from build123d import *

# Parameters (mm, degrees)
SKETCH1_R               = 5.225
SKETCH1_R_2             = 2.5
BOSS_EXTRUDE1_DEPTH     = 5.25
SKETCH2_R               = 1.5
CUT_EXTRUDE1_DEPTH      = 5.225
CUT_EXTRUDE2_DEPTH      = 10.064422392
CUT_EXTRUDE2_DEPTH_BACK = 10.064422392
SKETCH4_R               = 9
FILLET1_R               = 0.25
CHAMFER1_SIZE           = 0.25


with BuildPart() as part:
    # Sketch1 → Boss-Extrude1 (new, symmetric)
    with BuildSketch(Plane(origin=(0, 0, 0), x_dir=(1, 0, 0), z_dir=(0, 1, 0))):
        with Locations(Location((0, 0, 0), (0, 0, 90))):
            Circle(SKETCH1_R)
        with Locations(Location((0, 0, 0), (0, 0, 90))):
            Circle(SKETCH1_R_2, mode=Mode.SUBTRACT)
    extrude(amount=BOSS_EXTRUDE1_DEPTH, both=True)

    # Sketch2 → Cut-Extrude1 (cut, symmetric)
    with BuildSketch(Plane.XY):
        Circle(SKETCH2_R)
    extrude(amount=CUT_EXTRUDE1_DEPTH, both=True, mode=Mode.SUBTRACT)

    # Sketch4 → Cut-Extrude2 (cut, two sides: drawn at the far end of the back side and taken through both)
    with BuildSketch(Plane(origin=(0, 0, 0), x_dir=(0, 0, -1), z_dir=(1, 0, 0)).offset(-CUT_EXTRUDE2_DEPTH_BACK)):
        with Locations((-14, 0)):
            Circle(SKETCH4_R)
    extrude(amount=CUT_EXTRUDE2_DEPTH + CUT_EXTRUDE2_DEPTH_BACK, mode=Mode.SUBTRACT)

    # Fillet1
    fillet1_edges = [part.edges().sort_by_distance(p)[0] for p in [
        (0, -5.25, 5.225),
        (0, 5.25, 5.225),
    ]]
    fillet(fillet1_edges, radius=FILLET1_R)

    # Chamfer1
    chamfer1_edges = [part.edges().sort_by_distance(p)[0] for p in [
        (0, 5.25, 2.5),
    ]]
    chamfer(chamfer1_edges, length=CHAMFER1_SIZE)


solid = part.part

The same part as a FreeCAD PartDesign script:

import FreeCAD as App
import Part
import Sketcher
Q = App.Units.Quantity


def edges_at(feature, points):
    """Names of the edges that pass closest to the given points."""
    edges = feature.Shape.Edges
    near = lambda p: min(range(len(edges)), key=lambda i: edges[i].distToShape(Part.Vertex(*p))[0])
    return sorted({f"Edge{near(p) + 1}" for p in points})

doc = App.newDocument("Part")
params = doc.addObject("Spreadsheet::Sheet", "Params")
for row, (alias, value) in enumerate([
    ("sketch1_diameter", "5 mm"),
    ("sketch1_diameter2", "10.45 mm"),
    ("pad1_length", "10.5 mm"),
    ("sketch2_diameter", "3 mm"),
    ("pocket1_length", "10.45 mm"),
    ("sketch3_diameter", "18 mm"),
    ("fillet_radius", "0.25 mm"),
    ("chamfer_size", "0.25 mm"),
], start=1):
    params.set(f"A{row}", alias)
    params.set(f"B{row}", "=" + value)
    params.setAlias(f"B{row}", alias)

body = doc.addObject("PartDesign::Body", "Body")

sketch1 = doc.addObject("Sketcher::SketchObject", "Sketch")
body.addObject(sketch1)
sketch1.AttachmentSupport = (doc.XZ_Plane, [""])
sketch1.MapMode = "FlatFace"
sketch1.addGeometry([
    Part.Circle(App.Vector(0, 0, 0), App.Vector(0, 0, 1), 5.225),
    Part.Circle(App.Vector(0, 0, 0), App.Vector(0, 0, 1), 2.5),
], False)
sketch1.addConstraint([
    Sketcher.Constraint("Coincident", 0, 3, -1, 1),
    Sketcher.Constraint("Coincident", 1, 3, -1, 1),
    Sketcher.Constraint("Diameter", 1, Q("5 mm")),
    Sketcher.Constraint("Diameter", 0, Q("10.45 mm")),
])
sketch1.setExpression("Constraints[2]", "Params.sketch1_diameter")
sketch1.setExpression("Constraints[3]", "Params.sketch1_diameter2")
pad1 = doc.addObject("PartDesign::Pad", "Pad")
body.addObject(pad1)
pad1.Profile = sketch1
pad1.setExpression("Length", "Params.pad1_length")
pad1.Midplane = True

sketch2 = doc.addObject("Sketcher::SketchObject", "Sketch001")
body.addObject(sketch2)
sketch2.AttachmentSupport = (doc.XY_Plane, [""])
sketch2.MapMode = "FlatFace"
sketch2.addGeometry(Part.Circle(App.Vector(0, 0, 0), App.Vector(0, 0, 1), 1.5), False)
sketch2.addConstraint([
    Sketcher.Constraint("Coincident", 0, 3, -1, 1),
    Sketcher.Constraint("Diameter", 0, Q("3 mm")),
])
sketch2.setExpression("Constraints[1]", "Params.sketch2_diameter")
pocket1 = doc.addObject("PartDesign::Pocket", "Pocket")
body.addObject(pocket1)
pocket1.Profile = sketch2
pocket1.setExpression("Length", "Params.pocket1_length")
pocket1.Midplane = True

sketch3 = doc.addObject("Sketcher::SketchObject", "Sketch002")
body.addObject(sketch3)
sketch3.AttachmentSupport = (doc.YZ_Plane, [""])
sketch3.MapMode = "FlatFace"
sketch3.addGeometry(Part.Circle(App.Vector(0, 14, 0), App.Vector(0, 0, 1), 9), False)
sketch3.addConstraint([
    Sketcher.Constraint("PointOnObject", 0, 3, -2),
    Sketcher.Constraint("Diameter", 0, Q("18 mm")),
    Sketcher.Constraint("DistanceY", -1, 1, 0, 3, Q("14 mm")),
])
sketch3.setExpression("Constraints[1]", "Params.sketch3_diameter")
pocket2 = doc.addObject("PartDesign::Pocket", "Pocket001")
body.addObject(pocket2)
pocket2.Profile = sketch3
pocket2.Type = "ThroughAll"
pocket2.Midplane = True
doc.recompute()

fillet = doc.addObject("PartDesign::Fillet", "Fillet")
body.addObject(fillet)
fillet.Base = (pocket2, edges_at(pocket2, [(0, -5.25, 5.225), (0, 5.25, 5.225)]))
fillet.setExpression("Radius", "Params.fillet_radius")
doc.recompute()

chamfer = doc.addObject("PartDesign::Chamfer", "Chamfer")
body.addObject(chamfer)
chamfer.Base = (fillet, edges_at(fillet, [(0, 5.25, 2.5)]))
chamfer.setExpression("Size", "Params.chamfer_size")

doc.recompute()
